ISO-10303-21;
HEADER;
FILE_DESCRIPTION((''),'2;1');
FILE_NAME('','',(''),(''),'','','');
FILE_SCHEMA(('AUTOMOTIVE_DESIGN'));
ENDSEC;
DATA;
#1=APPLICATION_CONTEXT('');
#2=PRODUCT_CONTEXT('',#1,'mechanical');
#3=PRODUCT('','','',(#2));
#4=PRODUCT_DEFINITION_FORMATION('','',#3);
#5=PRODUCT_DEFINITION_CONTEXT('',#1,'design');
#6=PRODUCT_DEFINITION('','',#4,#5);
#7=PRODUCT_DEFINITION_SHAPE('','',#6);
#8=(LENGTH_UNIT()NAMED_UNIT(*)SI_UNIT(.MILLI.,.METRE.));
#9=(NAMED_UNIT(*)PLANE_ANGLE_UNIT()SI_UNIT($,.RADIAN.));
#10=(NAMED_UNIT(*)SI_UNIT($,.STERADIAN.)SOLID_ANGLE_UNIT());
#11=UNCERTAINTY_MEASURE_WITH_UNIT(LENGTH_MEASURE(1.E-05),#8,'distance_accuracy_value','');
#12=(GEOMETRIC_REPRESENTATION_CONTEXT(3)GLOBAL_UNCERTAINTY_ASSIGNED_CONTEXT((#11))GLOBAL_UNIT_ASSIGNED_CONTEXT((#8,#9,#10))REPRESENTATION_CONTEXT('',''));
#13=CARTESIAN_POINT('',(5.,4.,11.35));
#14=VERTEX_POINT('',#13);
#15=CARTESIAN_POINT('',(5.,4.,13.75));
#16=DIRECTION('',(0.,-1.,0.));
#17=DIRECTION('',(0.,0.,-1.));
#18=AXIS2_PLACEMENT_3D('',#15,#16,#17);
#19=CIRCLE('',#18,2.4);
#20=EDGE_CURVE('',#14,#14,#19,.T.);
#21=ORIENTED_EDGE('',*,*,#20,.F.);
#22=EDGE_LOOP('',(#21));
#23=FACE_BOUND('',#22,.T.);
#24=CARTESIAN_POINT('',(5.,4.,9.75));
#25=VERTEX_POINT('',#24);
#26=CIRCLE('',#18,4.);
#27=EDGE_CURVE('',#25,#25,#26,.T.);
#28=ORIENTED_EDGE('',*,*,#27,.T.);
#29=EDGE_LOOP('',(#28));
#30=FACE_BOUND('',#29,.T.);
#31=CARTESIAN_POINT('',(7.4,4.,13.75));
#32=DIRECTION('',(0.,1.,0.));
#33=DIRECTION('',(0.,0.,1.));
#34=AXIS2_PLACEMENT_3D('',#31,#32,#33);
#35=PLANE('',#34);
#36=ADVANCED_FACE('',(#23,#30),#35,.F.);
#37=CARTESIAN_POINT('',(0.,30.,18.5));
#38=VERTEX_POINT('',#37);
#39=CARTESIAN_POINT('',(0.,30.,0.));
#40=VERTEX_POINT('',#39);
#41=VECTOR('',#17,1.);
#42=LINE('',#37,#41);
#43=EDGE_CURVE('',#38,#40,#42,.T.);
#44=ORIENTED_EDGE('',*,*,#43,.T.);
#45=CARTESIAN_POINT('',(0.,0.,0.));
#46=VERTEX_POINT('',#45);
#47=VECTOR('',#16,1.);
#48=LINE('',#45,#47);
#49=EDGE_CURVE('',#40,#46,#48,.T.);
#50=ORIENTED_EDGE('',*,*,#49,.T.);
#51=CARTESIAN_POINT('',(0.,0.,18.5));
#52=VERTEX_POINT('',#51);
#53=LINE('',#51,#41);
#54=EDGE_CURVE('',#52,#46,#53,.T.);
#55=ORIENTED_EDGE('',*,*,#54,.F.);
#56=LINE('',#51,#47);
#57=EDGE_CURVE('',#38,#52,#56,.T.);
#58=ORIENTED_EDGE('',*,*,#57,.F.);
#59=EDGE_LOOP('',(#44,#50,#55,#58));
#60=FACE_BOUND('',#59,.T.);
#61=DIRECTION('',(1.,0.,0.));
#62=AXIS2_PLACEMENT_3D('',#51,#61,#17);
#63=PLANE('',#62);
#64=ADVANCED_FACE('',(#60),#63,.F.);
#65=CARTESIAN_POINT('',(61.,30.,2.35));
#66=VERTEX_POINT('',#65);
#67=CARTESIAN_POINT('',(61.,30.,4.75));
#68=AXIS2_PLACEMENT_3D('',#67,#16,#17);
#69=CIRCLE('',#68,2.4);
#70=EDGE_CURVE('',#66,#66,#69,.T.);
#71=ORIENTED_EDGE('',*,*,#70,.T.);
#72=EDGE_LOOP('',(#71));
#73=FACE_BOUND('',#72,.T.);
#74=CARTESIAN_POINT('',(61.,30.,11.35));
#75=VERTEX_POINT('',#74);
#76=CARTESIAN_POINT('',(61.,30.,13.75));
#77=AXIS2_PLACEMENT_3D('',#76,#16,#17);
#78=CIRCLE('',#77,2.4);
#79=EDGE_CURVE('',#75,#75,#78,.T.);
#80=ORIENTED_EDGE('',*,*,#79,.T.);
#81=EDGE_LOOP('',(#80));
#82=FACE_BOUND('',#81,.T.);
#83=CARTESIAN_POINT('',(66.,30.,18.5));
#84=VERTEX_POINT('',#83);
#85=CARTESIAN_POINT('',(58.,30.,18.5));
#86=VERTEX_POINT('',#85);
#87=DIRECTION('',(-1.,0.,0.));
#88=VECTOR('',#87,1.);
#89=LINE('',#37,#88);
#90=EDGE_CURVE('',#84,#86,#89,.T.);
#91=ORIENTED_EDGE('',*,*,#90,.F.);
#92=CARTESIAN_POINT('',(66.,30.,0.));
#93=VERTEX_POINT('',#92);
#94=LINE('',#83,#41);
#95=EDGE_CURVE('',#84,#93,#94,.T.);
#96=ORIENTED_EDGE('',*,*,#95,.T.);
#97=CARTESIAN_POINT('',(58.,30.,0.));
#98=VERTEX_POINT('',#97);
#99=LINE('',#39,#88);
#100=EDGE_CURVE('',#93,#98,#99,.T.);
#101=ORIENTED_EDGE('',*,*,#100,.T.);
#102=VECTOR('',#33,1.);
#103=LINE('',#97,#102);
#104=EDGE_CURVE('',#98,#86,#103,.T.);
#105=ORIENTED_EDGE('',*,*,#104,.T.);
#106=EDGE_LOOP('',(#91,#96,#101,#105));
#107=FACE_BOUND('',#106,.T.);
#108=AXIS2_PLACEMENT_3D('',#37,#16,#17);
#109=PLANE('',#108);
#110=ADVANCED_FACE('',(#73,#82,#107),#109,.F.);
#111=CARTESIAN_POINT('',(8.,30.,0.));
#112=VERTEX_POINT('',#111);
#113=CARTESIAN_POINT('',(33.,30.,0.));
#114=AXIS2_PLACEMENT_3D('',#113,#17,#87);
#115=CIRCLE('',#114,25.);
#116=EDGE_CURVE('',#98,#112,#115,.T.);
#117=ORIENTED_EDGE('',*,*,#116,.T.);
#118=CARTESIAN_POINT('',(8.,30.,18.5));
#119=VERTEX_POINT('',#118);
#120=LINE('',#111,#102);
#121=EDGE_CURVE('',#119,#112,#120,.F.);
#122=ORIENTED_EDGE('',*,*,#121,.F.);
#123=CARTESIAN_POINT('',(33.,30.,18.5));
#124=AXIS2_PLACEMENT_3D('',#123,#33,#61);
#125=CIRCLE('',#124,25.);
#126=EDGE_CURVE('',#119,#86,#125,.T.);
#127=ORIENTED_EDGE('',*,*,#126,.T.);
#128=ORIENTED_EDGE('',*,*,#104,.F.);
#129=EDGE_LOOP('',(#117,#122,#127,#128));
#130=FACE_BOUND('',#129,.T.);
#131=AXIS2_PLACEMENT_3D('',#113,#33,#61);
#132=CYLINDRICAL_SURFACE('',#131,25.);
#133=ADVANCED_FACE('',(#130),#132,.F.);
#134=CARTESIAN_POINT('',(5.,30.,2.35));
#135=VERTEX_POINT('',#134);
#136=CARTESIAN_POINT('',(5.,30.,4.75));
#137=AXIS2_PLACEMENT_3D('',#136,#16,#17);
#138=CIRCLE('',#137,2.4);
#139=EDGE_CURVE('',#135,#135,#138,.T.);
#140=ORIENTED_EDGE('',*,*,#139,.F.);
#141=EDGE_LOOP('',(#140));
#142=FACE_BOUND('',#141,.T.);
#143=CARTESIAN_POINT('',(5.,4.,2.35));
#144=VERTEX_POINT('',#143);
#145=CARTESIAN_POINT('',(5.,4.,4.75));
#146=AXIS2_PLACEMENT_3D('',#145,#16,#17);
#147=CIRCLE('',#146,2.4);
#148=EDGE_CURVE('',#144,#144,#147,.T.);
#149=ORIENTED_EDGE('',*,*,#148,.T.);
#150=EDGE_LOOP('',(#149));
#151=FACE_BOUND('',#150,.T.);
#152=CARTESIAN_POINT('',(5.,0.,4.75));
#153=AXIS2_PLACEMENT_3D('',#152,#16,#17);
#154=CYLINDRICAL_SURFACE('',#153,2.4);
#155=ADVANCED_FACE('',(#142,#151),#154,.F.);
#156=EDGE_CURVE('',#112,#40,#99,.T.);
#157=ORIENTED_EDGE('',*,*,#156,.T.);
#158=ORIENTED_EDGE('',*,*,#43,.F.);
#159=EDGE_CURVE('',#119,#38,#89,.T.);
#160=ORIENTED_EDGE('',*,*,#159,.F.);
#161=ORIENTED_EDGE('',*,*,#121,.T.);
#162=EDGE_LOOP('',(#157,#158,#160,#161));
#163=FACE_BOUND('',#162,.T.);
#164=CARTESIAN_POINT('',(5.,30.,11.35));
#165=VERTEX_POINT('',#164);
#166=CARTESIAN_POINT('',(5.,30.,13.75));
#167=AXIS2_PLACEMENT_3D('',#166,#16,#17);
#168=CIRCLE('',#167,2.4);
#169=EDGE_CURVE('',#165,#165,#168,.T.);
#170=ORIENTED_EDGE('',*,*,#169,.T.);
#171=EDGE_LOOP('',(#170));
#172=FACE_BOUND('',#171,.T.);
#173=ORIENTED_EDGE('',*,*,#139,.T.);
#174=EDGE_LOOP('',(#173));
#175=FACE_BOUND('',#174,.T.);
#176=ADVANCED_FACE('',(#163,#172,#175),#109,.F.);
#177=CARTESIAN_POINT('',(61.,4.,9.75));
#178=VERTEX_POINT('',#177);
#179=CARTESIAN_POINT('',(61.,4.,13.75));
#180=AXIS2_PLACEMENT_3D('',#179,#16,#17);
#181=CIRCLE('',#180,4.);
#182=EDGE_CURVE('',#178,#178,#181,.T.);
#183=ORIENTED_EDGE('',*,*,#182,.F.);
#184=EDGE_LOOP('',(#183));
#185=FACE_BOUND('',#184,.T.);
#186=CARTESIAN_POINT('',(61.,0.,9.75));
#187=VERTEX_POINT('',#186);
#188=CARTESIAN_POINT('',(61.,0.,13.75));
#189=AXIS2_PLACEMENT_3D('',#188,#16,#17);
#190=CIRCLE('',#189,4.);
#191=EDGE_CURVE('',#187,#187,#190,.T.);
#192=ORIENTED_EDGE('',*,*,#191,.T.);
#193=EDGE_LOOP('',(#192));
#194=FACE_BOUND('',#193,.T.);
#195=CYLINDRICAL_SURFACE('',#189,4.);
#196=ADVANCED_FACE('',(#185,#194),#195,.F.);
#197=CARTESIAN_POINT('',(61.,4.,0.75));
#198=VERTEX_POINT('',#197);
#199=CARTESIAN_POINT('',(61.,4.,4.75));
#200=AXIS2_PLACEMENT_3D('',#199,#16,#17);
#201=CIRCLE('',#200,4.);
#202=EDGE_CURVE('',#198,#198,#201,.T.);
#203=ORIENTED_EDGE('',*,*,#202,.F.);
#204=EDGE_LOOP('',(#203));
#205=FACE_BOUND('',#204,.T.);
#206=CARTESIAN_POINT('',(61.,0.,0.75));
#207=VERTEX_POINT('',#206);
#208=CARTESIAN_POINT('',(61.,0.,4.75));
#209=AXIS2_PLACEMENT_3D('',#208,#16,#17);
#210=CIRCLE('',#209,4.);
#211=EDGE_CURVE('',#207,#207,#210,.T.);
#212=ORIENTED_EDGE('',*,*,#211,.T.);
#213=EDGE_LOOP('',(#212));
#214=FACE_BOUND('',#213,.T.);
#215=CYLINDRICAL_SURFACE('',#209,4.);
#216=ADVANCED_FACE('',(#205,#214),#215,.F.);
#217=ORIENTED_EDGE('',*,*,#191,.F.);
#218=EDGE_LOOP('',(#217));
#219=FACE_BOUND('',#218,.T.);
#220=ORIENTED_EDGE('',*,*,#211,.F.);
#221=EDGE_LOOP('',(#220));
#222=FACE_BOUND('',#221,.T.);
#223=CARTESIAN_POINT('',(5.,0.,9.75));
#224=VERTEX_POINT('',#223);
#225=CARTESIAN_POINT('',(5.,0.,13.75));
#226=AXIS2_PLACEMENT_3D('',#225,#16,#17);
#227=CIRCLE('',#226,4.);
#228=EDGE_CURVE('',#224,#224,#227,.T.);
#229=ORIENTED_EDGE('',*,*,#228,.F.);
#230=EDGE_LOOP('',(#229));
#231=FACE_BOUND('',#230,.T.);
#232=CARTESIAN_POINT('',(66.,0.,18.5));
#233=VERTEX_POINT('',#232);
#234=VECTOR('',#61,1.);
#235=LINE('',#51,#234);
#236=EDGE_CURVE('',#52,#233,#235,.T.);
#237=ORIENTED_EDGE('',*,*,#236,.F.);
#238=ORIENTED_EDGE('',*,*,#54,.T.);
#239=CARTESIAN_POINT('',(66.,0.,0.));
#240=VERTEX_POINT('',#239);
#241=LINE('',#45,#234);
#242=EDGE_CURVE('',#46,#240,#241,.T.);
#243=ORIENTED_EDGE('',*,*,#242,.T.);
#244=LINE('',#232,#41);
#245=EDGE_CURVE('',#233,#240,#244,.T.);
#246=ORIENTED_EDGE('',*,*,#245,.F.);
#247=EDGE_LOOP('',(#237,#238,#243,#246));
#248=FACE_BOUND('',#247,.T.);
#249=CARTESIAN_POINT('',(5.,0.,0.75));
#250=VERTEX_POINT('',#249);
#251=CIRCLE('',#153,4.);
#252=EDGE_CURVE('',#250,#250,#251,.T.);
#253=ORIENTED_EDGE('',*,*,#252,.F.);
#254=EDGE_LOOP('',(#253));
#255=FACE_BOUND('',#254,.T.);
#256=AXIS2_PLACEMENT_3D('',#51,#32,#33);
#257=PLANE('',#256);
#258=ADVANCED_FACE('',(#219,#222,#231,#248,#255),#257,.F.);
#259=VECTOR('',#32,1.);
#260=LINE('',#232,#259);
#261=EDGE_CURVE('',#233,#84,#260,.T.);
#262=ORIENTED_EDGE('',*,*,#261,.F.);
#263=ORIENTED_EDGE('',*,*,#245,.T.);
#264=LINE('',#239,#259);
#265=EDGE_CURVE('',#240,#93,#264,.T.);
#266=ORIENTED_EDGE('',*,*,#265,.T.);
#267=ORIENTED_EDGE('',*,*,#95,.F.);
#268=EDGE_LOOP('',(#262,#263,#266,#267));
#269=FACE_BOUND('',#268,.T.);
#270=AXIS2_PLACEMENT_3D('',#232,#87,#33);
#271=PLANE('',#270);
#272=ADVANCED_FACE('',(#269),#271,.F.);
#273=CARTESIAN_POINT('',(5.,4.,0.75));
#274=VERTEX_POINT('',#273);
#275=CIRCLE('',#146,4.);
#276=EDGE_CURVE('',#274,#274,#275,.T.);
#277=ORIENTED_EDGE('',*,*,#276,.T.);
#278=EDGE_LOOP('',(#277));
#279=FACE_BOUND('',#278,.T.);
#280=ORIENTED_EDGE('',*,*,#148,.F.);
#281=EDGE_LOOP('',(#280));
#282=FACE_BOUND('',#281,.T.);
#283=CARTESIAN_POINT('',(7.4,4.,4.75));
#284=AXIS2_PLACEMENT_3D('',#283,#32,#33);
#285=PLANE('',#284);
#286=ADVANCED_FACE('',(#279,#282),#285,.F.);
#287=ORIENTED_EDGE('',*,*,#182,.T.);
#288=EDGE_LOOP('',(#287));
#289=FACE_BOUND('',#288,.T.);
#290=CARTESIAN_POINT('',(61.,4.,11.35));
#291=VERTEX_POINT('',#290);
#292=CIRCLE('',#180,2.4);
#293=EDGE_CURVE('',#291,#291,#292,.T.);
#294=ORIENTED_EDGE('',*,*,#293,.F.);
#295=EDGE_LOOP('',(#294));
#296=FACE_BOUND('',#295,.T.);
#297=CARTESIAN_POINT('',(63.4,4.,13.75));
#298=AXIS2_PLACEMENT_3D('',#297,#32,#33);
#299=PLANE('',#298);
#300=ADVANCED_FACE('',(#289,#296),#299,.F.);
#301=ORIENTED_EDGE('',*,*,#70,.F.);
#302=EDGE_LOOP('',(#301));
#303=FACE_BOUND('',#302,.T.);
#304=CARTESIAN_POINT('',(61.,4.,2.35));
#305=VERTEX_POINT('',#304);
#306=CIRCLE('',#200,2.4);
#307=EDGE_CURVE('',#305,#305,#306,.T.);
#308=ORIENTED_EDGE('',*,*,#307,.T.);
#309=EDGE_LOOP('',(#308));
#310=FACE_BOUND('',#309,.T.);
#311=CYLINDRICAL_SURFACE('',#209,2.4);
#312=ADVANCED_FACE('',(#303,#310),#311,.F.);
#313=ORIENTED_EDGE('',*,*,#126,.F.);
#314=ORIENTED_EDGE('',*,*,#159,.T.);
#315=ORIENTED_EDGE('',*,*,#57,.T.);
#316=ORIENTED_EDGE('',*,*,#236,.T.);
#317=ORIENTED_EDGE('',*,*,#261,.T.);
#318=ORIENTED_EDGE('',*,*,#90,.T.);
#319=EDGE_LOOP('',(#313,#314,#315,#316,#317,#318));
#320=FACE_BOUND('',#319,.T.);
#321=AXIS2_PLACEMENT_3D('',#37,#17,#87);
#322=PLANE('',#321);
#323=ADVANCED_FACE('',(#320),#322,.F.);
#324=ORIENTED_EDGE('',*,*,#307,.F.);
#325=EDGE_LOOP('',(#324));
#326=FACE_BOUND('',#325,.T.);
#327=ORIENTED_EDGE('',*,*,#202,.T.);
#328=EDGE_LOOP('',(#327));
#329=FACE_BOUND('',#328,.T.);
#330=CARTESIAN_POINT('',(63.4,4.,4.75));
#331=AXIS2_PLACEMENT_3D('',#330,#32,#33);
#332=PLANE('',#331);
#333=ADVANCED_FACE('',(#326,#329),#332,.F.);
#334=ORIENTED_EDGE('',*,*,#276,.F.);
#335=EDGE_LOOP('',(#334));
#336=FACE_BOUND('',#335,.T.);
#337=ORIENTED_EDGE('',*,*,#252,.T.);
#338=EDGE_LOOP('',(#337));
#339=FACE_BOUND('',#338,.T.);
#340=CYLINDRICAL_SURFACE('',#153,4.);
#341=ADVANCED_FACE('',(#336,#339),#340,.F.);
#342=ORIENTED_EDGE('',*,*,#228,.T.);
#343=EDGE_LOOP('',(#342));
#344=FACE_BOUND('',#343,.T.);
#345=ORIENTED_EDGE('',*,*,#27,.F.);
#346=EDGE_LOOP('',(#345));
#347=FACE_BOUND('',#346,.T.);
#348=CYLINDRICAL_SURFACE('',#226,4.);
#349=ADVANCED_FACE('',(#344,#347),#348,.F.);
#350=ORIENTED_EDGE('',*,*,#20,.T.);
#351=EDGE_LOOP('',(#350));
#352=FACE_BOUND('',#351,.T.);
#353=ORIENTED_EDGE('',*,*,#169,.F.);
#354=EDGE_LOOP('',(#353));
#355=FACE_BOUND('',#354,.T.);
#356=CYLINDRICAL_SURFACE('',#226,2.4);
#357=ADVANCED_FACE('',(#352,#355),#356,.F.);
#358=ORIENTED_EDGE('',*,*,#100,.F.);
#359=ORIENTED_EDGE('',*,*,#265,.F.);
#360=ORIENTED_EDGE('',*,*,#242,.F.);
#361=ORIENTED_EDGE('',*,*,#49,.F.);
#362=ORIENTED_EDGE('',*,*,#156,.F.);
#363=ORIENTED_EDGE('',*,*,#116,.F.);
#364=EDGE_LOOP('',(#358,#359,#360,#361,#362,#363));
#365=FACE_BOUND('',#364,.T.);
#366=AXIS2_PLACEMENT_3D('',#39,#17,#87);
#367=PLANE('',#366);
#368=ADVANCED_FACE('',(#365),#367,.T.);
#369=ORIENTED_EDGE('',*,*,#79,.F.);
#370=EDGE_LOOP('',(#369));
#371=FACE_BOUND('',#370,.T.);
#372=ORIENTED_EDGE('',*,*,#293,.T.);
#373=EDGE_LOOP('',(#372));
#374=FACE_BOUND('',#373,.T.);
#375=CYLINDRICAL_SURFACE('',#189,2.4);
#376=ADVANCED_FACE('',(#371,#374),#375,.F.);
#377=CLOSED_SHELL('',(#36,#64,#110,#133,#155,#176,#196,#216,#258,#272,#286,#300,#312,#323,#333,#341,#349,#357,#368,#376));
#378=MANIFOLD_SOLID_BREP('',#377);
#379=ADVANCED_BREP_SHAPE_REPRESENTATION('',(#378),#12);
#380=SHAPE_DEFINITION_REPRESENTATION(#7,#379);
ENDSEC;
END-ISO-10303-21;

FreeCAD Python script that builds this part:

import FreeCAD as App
import Part
import Sketcher

V = App.Vector
Q = App.Units.Quantity


def add_polygon(sketch, points):
    """Adds a closed chain of lines whose ends are joined by coincident constraints."""
    first, n = sketch.GeometryCount, len(points)
    for a, b in zip(points, points[1:] + points[:1]):
        sketch.addGeometry(Part.LineSegment(App.Vector(*a, 0), App.Vector(*b, 0)), False)
    for i in range(n):
        sketch.addConstraint(Sketcher.Constraint("Coincident", first + i, 2, first + (i + 1) % n, 1))

doc = App.newDocument("Part")
body = doc.addObject("PartDesign::Body", "Body")

# Sketch on XY plane
sketch1 = body.newObject("Sketcher::SketchObject", "Sketch")
sketch1.AttachmentSupport = (doc.getObject("XY_Plane"), [""])
sketch1.MapMode = "FlatFace"
add_polygon(sketch1, [(0, 30), (0, 0), (66, 0), (66, 30)])  # lines 0-3
sketch1.addConstraint([
    Sketcher.Constraint("Vertical", 0),
    Sketcher.Constraint("Horizontal", 1),
    Sketcher.Constraint("Vertical", 2),
    Sketcher.Constraint("Horizontal", 3),
    Sketcher.Constraint("Coincident", 0, 2, -1, 1),
    Sketcher.Constraint("DistanceX", 1, 1, 1, 2, Q("66 mm")),
    Sketcher.Constraint("DistanceY", 0, 2, 0, 1, Q("30 mm")),
])
pad1 = body.newObject("PartDesign::Pad", "Pad")
pad1.Profile = sketch1
pad1.Length = 18.5

# Sketch on XY plane
sketch2 = body.newObject("Sketcher::SketchObject", "Sketch001")
sketch2.AttachmentSupport = (doc.getObject("XY_Plane"), [""])
sketch2.MapMode = "FlatFace"
sketch2.AttachmentOffset = App.Placement(V(0, 0, 18.5), App.Rotation())
sketch2.addGeometry(Part.Circle(V(33, 30, 0), V(0, 0, 1), 25), False)
sketch2.addConstraint([
    Sketcher.Constraint("Diameter", 0, Q("50 mm")),
    Sketcher.Constraint("DistanceX", -1, 1, 0, 3, Q("33 mm")),
    Sketcher.Constraint("DistanceY", -1, 1, 0, 3, Q("30 mm")),
])
pocket1 = body.newObject("PartDesign::Pocket", "Pocket")
pocket1.Profile = sketch2
pocket1.Type = "ThroughAll"

# Sketch on XZ plane
sketch3 = body.newObject("Sketcher::SketchObject", "Sketch002")
sketch3.AttachmentSupport = (doc.getObject("XZ_Plane"), [""])
sketch3.MapMode = "FlatFace"
sketch3.addGeometry([
    Part.Circle(V(5, 13.75, 0), V(0, 0, 1), 2.4),
    Part.Circle(V(5, 4.75, 0), V(0, 0, 1), 2.4),
    Part.Circle(V(61, 13.75, 0), V(0, 0, 1), 2.4),
    Part.Circle(V(61, 4.75, 0), V(0, 0, 1), 2.4),
], False)
sketch3.addConstraint([
    Sketcher.Constraint("Equal", 0, 1),
    Sketcher.Constraint("Equal", 1, 2),
    Sketcher.Constraint("Equal", 2, 3),
    Sketcher.Constraint("Horizontal", 0, 3, 2, 3),
    Sketcher.Constraint("Horizontal", 1, 3, 3, 3),
    Sketcher.Constraint("Vertical", 0, 3, 1, 3),
    Sketcher.Constraint("Vertical", 2, 3, 3, 3),
    Sketcher.Constraint("Diameter", 0, Q("4.8 mm")),
    Sketcher.Constraint("DistanceX", -1, 1, 0, 3, Q("5 mm")),
    Sketcher.Constraint("DistanceX", -1, 1, 2, 3, Q("61 mm")),
    Sketcher.Constraint("DistanceY", 1, 3, 0, 3, Q("9 mm")),
    Sketcher.Constraint("DistanceY", -1, 1, 0, 3, Q("13.75 mm")),
])
doc.recompute()
hole = body.newObject("PartDesign::Hole", "Hole")
hole.Profile = sketch3
hole.ThreadType = "None"
hole.Diameter = 4.8
hole.DepthType = "ThroughAll"
hole.HoleCutType = "Counterbore"
hole.HoleCutDiameter = 8
hole.HoleCutDepth = 4

doc.recompute()
